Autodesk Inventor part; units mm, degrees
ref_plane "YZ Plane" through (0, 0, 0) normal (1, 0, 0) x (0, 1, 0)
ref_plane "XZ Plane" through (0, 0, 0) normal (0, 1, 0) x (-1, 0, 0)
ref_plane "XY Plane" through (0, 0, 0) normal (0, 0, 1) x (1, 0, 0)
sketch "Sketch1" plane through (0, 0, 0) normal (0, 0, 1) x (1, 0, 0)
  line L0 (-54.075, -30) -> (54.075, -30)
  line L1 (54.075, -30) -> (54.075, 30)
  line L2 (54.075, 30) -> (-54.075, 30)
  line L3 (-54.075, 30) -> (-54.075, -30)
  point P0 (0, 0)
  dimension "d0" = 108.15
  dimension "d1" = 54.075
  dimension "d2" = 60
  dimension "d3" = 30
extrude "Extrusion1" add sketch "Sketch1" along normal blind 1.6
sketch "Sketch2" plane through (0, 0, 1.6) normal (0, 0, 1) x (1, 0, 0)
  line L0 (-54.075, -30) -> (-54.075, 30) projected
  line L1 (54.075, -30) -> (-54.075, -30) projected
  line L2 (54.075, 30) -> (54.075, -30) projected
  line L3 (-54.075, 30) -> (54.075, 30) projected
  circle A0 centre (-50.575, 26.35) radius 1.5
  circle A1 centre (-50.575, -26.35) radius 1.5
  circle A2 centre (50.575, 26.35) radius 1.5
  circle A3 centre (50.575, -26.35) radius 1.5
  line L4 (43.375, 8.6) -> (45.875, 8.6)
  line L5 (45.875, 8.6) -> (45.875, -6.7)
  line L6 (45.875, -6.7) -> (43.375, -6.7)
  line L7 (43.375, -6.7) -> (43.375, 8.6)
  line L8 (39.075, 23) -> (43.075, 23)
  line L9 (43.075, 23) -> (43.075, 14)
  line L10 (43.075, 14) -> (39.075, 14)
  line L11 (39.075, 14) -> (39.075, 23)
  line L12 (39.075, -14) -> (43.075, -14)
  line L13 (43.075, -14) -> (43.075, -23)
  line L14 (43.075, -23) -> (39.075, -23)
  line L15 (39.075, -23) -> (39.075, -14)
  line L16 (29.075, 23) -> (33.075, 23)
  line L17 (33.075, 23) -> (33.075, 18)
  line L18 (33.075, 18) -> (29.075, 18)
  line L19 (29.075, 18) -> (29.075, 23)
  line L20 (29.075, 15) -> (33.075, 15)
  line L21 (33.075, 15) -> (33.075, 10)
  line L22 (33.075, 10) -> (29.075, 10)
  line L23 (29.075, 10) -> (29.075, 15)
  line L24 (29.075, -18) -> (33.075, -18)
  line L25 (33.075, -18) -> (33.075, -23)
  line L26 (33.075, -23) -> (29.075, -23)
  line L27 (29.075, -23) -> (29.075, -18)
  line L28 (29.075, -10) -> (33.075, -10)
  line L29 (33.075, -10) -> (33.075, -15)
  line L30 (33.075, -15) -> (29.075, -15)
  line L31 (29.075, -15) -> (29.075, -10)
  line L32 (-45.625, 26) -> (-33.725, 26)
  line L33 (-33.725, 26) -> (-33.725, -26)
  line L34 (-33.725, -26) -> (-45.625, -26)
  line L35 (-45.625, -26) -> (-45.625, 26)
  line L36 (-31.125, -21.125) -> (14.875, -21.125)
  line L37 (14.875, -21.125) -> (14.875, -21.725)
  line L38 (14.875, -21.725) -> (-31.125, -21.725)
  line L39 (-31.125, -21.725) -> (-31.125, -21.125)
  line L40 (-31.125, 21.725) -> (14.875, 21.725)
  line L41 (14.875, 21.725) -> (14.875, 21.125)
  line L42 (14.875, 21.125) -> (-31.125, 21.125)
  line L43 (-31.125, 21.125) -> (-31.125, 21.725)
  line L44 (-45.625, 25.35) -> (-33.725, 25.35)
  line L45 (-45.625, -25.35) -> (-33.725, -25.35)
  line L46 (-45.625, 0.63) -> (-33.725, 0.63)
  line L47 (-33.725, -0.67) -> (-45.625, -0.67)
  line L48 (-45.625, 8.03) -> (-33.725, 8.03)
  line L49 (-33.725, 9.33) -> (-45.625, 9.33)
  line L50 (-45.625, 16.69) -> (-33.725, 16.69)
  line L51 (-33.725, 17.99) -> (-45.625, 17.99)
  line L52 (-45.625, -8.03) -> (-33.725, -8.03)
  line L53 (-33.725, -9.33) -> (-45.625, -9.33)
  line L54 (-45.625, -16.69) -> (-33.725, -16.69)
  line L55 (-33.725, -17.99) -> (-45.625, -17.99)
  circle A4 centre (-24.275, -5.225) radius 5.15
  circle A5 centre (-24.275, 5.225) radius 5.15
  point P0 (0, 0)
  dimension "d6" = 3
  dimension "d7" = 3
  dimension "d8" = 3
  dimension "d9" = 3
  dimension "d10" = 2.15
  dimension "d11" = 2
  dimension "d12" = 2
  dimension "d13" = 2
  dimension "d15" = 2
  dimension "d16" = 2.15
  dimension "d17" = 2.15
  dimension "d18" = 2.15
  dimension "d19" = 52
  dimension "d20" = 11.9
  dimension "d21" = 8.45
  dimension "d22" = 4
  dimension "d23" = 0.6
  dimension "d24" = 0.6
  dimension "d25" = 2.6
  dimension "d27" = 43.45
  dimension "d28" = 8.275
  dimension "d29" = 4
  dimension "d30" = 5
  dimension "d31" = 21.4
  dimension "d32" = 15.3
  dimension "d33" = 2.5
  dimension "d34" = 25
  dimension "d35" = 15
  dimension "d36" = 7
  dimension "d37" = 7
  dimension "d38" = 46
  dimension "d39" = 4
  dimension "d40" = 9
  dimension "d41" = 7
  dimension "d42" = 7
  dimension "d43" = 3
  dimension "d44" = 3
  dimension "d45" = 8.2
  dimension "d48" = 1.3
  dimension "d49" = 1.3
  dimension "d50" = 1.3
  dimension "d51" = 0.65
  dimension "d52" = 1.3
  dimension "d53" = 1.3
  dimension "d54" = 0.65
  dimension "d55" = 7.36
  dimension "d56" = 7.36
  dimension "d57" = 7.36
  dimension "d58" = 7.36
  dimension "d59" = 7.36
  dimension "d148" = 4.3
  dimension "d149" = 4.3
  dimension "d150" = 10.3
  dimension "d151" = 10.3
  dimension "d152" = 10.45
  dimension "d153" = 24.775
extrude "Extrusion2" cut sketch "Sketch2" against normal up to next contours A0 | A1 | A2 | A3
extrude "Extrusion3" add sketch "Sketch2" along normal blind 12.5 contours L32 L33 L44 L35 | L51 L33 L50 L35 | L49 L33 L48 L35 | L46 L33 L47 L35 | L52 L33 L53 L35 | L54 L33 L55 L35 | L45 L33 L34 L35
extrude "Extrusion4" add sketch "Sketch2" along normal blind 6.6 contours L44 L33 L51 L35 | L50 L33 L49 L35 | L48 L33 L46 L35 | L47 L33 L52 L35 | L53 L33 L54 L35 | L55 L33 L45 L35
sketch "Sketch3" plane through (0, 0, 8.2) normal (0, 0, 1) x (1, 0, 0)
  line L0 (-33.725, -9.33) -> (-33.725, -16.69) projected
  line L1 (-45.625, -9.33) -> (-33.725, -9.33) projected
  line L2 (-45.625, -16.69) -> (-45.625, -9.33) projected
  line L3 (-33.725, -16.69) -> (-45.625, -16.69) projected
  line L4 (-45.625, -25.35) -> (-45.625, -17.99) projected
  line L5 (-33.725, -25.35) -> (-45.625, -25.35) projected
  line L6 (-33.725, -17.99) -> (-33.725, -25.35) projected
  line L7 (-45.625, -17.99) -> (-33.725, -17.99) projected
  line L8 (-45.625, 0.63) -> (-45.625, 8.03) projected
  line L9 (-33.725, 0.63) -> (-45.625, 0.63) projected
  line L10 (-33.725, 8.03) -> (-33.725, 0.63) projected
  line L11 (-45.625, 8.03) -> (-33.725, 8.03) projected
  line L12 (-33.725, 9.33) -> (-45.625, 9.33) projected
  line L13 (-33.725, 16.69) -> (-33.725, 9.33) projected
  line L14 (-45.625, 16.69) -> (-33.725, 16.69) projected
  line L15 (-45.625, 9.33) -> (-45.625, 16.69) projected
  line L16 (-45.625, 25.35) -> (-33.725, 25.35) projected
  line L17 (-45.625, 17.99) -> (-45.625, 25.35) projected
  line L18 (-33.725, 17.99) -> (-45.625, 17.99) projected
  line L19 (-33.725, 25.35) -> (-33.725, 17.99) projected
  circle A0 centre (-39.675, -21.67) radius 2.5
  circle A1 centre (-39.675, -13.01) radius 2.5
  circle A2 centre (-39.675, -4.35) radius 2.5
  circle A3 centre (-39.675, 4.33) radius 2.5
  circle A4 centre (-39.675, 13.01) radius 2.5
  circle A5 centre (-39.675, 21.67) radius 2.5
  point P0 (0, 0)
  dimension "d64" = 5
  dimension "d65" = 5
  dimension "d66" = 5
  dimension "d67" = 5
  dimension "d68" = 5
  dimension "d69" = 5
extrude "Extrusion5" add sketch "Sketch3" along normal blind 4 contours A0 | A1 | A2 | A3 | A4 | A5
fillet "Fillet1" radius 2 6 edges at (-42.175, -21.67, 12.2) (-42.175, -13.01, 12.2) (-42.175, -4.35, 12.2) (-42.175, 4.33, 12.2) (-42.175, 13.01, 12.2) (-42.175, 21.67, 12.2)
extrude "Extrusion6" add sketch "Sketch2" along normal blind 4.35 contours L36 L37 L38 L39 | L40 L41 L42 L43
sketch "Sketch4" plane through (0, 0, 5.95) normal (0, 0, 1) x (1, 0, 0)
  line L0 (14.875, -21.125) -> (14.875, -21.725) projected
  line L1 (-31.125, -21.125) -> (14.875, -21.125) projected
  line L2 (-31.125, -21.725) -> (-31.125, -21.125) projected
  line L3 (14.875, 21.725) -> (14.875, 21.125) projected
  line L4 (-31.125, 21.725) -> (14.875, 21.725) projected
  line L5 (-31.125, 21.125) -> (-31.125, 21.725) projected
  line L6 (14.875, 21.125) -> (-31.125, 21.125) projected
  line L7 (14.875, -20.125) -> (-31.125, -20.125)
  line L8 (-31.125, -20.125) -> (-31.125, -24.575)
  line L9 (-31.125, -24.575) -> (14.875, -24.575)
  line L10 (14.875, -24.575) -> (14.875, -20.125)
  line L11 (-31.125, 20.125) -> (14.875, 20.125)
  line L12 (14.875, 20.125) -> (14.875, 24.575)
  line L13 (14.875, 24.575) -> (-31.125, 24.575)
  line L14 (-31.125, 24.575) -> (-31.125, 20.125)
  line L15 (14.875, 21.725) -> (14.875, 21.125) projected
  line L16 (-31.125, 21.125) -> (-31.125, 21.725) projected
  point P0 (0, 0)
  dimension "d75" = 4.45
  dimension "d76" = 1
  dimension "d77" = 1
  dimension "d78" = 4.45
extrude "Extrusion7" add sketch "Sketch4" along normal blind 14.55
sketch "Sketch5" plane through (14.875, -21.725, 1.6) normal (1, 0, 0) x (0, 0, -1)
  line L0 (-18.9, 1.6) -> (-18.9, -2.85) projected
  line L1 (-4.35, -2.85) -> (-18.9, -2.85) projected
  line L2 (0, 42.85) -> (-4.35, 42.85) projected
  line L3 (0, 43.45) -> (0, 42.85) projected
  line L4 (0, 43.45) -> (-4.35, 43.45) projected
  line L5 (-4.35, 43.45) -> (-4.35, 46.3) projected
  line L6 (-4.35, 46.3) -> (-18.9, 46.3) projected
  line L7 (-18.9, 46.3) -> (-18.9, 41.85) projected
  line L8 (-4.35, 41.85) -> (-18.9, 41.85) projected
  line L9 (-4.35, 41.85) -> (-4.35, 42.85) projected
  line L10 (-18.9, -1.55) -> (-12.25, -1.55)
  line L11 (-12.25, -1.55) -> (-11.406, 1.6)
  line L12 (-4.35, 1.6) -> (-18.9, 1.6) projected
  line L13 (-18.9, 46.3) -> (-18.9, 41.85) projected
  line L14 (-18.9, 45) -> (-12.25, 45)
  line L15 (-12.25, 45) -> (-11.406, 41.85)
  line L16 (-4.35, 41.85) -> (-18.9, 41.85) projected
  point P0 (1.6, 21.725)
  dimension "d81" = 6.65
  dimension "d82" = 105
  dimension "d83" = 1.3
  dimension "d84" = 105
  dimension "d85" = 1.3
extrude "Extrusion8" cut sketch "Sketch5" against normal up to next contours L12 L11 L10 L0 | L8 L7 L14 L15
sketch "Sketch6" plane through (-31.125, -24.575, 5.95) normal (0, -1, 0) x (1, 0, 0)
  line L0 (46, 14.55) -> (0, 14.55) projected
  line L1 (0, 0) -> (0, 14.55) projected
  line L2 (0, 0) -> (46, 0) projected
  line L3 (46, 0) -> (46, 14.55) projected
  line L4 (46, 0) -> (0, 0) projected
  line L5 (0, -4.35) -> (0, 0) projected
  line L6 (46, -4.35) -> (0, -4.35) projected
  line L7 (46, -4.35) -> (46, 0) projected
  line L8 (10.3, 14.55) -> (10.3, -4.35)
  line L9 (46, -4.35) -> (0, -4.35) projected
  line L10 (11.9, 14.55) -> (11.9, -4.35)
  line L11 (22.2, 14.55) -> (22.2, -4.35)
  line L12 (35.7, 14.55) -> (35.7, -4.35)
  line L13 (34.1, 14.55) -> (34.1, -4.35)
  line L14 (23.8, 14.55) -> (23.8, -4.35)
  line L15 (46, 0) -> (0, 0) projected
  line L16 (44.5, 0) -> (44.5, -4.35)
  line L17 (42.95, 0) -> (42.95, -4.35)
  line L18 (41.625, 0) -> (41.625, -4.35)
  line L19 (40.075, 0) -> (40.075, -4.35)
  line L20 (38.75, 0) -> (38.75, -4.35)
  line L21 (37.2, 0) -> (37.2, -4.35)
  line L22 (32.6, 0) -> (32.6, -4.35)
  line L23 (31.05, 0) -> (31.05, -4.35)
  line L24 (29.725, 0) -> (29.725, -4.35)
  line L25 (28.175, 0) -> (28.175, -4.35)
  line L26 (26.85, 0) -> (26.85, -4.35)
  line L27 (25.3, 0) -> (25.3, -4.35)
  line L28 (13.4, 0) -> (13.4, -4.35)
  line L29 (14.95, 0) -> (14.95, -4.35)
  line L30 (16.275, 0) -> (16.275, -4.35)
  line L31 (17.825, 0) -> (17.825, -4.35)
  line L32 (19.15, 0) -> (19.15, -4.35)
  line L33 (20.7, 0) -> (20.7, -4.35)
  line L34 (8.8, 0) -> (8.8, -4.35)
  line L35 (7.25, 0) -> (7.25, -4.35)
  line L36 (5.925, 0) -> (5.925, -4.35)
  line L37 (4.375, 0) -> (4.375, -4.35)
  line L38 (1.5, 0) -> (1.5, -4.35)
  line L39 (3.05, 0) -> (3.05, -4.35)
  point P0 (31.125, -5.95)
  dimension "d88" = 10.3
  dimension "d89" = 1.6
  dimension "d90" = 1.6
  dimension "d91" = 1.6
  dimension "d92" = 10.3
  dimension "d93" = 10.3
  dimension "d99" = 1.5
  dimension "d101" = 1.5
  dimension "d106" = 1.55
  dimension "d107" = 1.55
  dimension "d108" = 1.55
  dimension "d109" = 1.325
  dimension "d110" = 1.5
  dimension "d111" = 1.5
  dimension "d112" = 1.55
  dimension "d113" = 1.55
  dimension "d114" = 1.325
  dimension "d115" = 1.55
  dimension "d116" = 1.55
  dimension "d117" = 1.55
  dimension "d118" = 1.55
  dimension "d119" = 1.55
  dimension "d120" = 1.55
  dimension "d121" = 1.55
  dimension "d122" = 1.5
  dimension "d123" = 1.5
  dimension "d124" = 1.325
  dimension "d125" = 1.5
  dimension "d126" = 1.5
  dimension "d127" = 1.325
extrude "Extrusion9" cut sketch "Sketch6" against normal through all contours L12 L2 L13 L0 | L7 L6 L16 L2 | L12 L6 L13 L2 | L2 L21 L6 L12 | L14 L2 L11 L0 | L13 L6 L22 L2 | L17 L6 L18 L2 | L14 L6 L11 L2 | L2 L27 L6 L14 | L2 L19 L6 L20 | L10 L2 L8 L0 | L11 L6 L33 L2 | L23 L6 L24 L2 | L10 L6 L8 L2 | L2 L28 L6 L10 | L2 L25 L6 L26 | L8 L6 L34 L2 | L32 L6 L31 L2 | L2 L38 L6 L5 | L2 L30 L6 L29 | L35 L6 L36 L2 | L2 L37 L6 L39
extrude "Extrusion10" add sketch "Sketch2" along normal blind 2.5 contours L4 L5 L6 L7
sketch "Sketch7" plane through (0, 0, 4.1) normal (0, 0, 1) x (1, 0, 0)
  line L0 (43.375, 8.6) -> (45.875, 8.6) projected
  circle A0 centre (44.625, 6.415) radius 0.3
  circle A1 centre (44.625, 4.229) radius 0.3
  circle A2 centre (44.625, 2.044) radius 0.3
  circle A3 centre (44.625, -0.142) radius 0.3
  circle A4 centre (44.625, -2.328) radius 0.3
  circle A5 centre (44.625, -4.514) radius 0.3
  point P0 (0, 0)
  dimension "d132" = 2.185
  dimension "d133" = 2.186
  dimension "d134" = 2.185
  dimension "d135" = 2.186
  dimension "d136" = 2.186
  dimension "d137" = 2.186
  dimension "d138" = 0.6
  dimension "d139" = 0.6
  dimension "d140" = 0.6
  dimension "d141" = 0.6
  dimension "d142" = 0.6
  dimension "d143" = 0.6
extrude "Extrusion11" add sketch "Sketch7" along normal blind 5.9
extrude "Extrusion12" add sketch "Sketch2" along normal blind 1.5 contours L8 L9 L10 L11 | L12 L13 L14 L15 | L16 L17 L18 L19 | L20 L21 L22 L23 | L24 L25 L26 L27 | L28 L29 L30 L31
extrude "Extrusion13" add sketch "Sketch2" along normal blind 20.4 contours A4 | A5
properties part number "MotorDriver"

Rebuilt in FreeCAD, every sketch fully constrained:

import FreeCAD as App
import Part
import Sketcher

V = App.Vector
Q = App.Units.Quantity


def edges_at(feature, points):
    """Names of the edges that pass closest to the given points."""
    edges = feature.Shape.Edges
    near = lambda p: min(range(len(edges)), key=lambda i: edges[i].distToShape(Part.Vertex(*p))[0])
    return sorted({f"Edge{near(p) + 1}" for p in points})


def add_polygon(sketch, points):
    """Adds a closed chain of lines whose ends are joined by coincident constraints."""
    first, n = sketch.GeometryCount, len(points)
    for a, b in zip(points, points[1:] + points[:1]):
        sketch.addGeometry(Part.LineSegment(App.Vector(*a, 0), App.Vector(*b, 0)), False)
    for i in range(n):
        sketch.addConstraint(Sketcher.Constraint("Coincident", first + i, 2, first + (i + 1) % n, 1))

doc = App.newDocument("Part")
body = doc.addObject("PartDesign::Body", "Body")

sketch1 = doc.addObject("Sketcher::SketchObject", "Sketch")
body.addObject(sketch1)
sketch1.AttachmentSupport = (doc.XY_Plane, [""])
sketch1.MapMode = "FlatFace"
add_polygon(sketch1, [(-54, 30), (-54, -30), (54, -30), (54, 30)])
sketch1.addConstraint([
    Sketcher.Constraint("Vertical", 0),
    Sketcher.Constraint("Horizontal", 1),
    Sketcher.Constraint("Vertical", 2),
    Sketcher.Constraint("Horizontal", 3),
    Sketcher.Constraint("Symmetric", 0, 2, 2, 2, -1, 1),
    Sketcher.Constraint("DistanceY", 0, 2, 0, 1, 60.0),
    Sketcher.Constraint("DistanceX", 1, 1, 1, 2, 108.15),
])
pad1 = doc.addObject("PartDesign::Pad", "Pad")
body.addObject(pad1)
pad1.Profile = sketch1
pad1.Length = 1.6

sketch2 = doc.addObject("Sketcher::SketchObject", "Sketch001")
body.addObject(sketch2)
sketch2.AttachmentSupport = (doc.XY_Plane, [""])
sketch2.MapMode = "FlatFace"
sketch2.AttachmentOffset = App.Placement(V(0, 0, 1.6), App.Rotation())
sketch2.addGeometry([
    Part.Circle(V(-50.6, 26.4, 0), V(0, 0, 1), 1.5),
    Part.Circle(V(-50.6, -26.4, 0), V(0, 0, 1), 1.5),
    Part.Circle(V(50.6, 26.4, 0), V(0, 0, 1), 1.5),
    Part.Circle(V(50.6, -26.4, 0), V(0, 0, 1), 1.5),
], False)
sketch2.addConstraint([
    Sketcher.Constraint("Equal", 0, 1),
    Sketcher.Constraint("Equal", 1, 2),
    Sketcher.Constraint("Equal", 2, 3),
    Sketcher.Constraint("Symmetric", 1, 3, 2, 3, -1, 1),
    Sketcher.Constraint("Symmetric", 0, 3, 3, 3, -1, 1),
    Sketcher.Constraint("Symmetric", 0, 3, 2, 3, -2),
    Sketcher.Constraint("Diameter", 0, 3.0),
    Sketcher.Constraint("DistanceY", 1, 3, 0, 3, 52.7),
    Sketcher.Constraint("DistanceX", 0, 3, 2, 3, 101.15),
])
pocket1 = doc.addObject("PartDesign::Pocket", "Pocket")
body.addObject(pocket1)
pocket1.Profile = sketch2
pocket1.Length = 1.6

sketch3 = doc.addObject("Sketcher::SketchObject", "Sketch002")
body.addObject(sketch3)
sketch3.AttachmentSupport = (doc.XY_Plane, [""])
sketch3.MapMode = "FlatFace"
sketch3.AttachmentOffset = App.Placement(V(0, 0, 1.6), App.Rotation())
add_polygon(sketch3, [(-33.7, 26), (-45.6, 26), (-45.6, 25.4), (-33.7, 25.4)])
add_polygon(sketch3, [(-33.7, 18), (-45.6, 18), (-45.6, 16.7), (-33.7, 16.7)])
add_polygon(sketch3, [(-33.7, 9.3), (-45.6, 9.3), (-45.6, 8), (-33.7, 8)])
add_polygon(sketch3, [(-33.7, 0.6), (-45.6, 0.6), (-45.6, -0.7), (-33.7, -0.7)])
add_polygon(sketch3, [(-33.7, -8), (-45.6, -8), (-45.6, -9.3), (-33.7, -9.3)])
add_polygon(sketch3, [(-33.7, -16.7), (-45.6, -16.7), (-45.6, -18), (-33.7, -18)])
add_polygon(sketch3, [(-33.7, -25.4), (-45.6, -25.4), (-45.6, -26), (-33.7, -26)])
sketch3.addConstraint([
    Sketcher.Constraint("Horizontal", 0),
    Sketcher.Constraint("Vertical", 1),
    Sketcher.Constraint("Horizontal", 2),
    Sketcher.Constraint("Vertical", 3),
    Sketcher.Constraint("Horizontal", 4),
    Sketcher.Constraint("Vertical", 5),
    Sketcher.Constraint("Horizontal", 6),
    Sketcher.Constraint("Vertical", 7),
    Sketcher.Constraint("Horizontal", 8),
    Sketcher.Constraint("Vertical", 9),
    Sketcher.Constraint("Horizontal", 10),
    Sketcher.Constraint("Vertical", 11),
    Sketcher.Constraint("Horizontal", 12),
    Sketcher.Constraint("Vertical", 13),
    Sketcher.Constraint("Horizontal", 14),
    Sketcher.Constraint("Vertical", 15),
    Sketcher.Constraint("Horizontal", 16),
    Sketcher.Constraint("Vertical", 17),
    Sketcher.Constraint("Horizontal", 18),
    Sketcher.Constraint("Vertical", 19),
    Sketcher.Constraint("Horizontal", 20),
    Sketcher.Constraint("Vertical", 21),
    Sketcher.Constraint("Horizontal", 22),
    Sketcher.Constraint("Vertical", 23),
    Sketcher.Constraint("Horizontal", 24),
    Sketcher.Constraint("Vertical", 25),
    Sketcher.Constraint("Horizontal", 26),
    Sketcher.Constraint("Vertical", 27),
    Sketcher.Constraint("Symmetric", 9, 2, 16, 2, -1),
    Sketcher.Constraint("Symmetric", 11, 2, 18, 2, -1),
    Sketcher.Constraint("Symmetric", 5, 2, 20, 2, -1),
    Sketcher.Constraint("Symmetric", 7, 2, 22, 2, -1),
    Sketcher.Constraint("Symmetric", 1, 2, 24, 2, -1),
    Sketcher.Constraint("Symmetric", 3, 2, 26, 2, -1),
    Sketcher.Constraint("Vertical", 1, 2, 4, 2),
    Sketcher.Constraint("Vertical", 3, 2, 6, 2),
    Sketcher.Constraint("Vertical", 5, 2, 8, 2),
    Sketcher.Constraint("Vertical", 7, 2, 10, 2),
    Sketcher.Constraint("Vertical", 9, 2, 12, 2),
    Sketcher.Constraint("Vertical", 11, 2, 14, 2),
    Sketcher.Constraint("Equal", 7, 9),
    Sketcher.Constraint("Equal", 11, 13),
    Sketcher.Constraint("DistanceX", 0, 2, 0, 1, 11.9),
    Sketcher.Constraint("DistanceY", 5, 2, 5, 1, 1.3),
    Sketcher.Constraint("DistanceY", 1, 2, 1, 1, 0.65),
    Sketcher.Constraint("DistanceY", 4, 2, 1, 2, 7.36),
    Sketcher.Constraint("DistanceY", 8, 2, 5, 2, 7.36),
    Sketcher.Constraint("DistanceY", 16, 2, 13, 2, 7.36),
    Sketcher.Constraint("DistanceY", -1, 1, 0, 2, 26.0),
    Sketcher.Constraint("DistanceX", 0, 2, -1, 1, 45.625),
])
pad2 = doc.addObject("PartDesign::Pad", "Pad001")
body.addObject(pad2)
pad2.Profile = sketch3
pad2.Length = 12.5

sketch4 = doc.addObject("Sketcher::SketchObject", "Sketch003")
body.addObject(sketch4)
sketch4.AttachmentSupport = (doc.XY_Plane, [""])
sketch4.MapMode = "FlatFace"
sketch4.AttachmentOffset = App.Placement(V(0, 0, 1.6), App.Rotation())
add_polygon(sketch4, [(-34, 25), (-46, 25), (-46, 18), (-34, 18)])
add_polygon(sketch4, [(-34, 17), (-46, 17), (-46, 9), (-34, 9)])
add_polygon(sketch4, [(-34, 8), (-46, 8), (-46, 1), (-34, 1)])
add_polygon(sketch4, [(-34, -1), (-46, -1), (-46, -8), (-34, -8)])
add_polygon(sketch4, [(-34, -9), (-46, -9), (-46, -17), (-34, -17)])
add_polygon(sketch4, [(-34, -18), (-46, -18), (-46, -25), (-34, -25)])
sketch4.addConstraint([
    Sketcher.Constraint("Horizontal", 0),
    Sketcher.Constraint("Vertical", 1),
    Sketcher.Constraint("Horizontal", 2),
    Sketcher.Constraint("Vertical", 3),
    Sketcher.Constraint("Horizontal", 4),
    Sketcher.Constraint("Vertical", 5),
    Sketcher.Constraint("Horizontal", 6),
    Sketcher.Constraint("Vertical", 7),
    Sketcher.Constraint("Horizontal", 8),
    Sketcher.Constraint("Vertical", 9),
    Sketcher.Constraint("Horizontal", 10),
    Sketcher.Constraint("Vertical", 11),
    Sketcher.Constraint("Horizontal", 12),
    Sketcher.Constraint("Vertical", 13),
    Sketcher.Constraint("Horizontal", 14),
    Sketcher.Constraint("Vertical", 15),
    Sketcher.Constraint("Horizontal", 16),
    Sketcher.Constraint("Vertical", 17),
    Sketcher.Constraint("Horizontal", 18),
    Sketcher.Constraint("Vertical", 19),
    Sketcher.Constraint("Horizontal", 20),
    Sketcher.Constraint("Vertical", 21),
    Sketcher.Constraint("Horizontal", 22),
    Sketcher.Constraint("Vertical", 23),
    Sketcher.Constraint("Symmetric", 8, 2, 13, 2, -1),
    Sketcher.Constraint("Symmetric", 5, 2, 16, 2, -1),
    Sketcher.Constraint("Symmetric", 7, 2, 18, 2, -1),
    Sketcher.Constraint("Symmetric", 1, 2, 20, 2, -1),
    Sketcher.Constraint("Symmetric", 3, 2, 22, 2, -1),
    Sketcher.Constraint("Vertical", 1, 2, 4, 2),
    Sketcher.Constraint("Vertical", 3, 2, 6, 2),
    Sketcher.Constraint("Vertical", 5, 2, 8, 2),
    Sketcher.Constraint("Vertical", 7, 2, 10, 2),
    Sketcher.Constraint("Vertical", 11, 2, 14, 2),
    Sketcher.Constraint("Equal", 3, 5),
    Sketcher.Constraint("Equal", 7, 13),
    Sketcher.Constraint("DistanceX", 0, 2, 0, 1, 11.9),
    Sketcher.Constraint("DistanceY", 1, 2, 1, 1, 7.36),
    Sketcher.Constraint("DistanceY", 4, 2, 1, 2, 1.3),
    Sketcher.Constraint("DistanceY", 8, 2, 5, 2, 1.3),
    Sketcher.Constraint("DistanceY", 12, 2, 9, 2, 1.3),
    Sketcher.Constraint("DistanceY", 9, 2, 9, 1, 7.4),
    Sketcher.Constraint("DistanceX", 0, 2, -1, 1, 45.625),
])
pad3 = doc.addObject("PartDesign::Pad", "Pad002")
body.addObject(pad3)
pad3.Profile = sketch4
pad3.Length = 6.6

sketch5 = doc.addObject("Sketcher::SketchObject", "Sketch004")
body.addObject(sketch5)
sketch5.AttachmentSupport = (doc.XY_Plane, [""])
sketch5.MapMode = "FlatFace"
sketch5.AttachmentOffset = App.Placement(V(0, 0, 8.2), App.Rotation())
sketch5.addGeometry([
    Part.Circle(V(-39.7, -21.7, 0), V(0, 0, 1), 2.5),
    Part.Circle(V(-39.7, -13, 0), V(0, 0, 1), 2.5),
    Part.Circle(V(-39.7, -4.3, 0), V(0, 0, 1), 2.5),
    Part.Circle(V(-39.7, 4.3, 0), V(0, 0, 1), 2.5),
    Part.Circle(V(-39.7, 13, 0), V(0, 0, 1), 2.5),
    Part.Circle(V(-39.7, 21.7, 0), V(0, 0, 1), 2.5),
], False)
sketch5.addConstraint([
    Sketcher.Constraint("Equal", 0, 1),
    Sketcher.Constraint("Equal", 1, 2),
    Sketcher.Constraint("Equal", 2, 3),
    Sketcher.Constraint("Equal", 3, 4),
    Sketcher.Constraint("Equal", 4, 5),
    Sketcher.Constraint("Symmetric", 1, 3, 4, 3, -1),
    Sketcher.Constraint("Symmetric", 0, 3, 5, 3, -1),
    Sketcher.Constraint("Vertical", 0, 3, 1, 3),
    Sketcher.Constraint("Vertical", 1, 3, 2, 3),
    Sketcher.Constraint("Vertical", 2, 3, 3, 3),
    Sketcher.Constraint("Diameter", 0, 5.0),
    Sketcher.Constraint("DistanceY", 0, 3, 3, 3, 26.0),
    Sketcher.Constraint("DistanceY", 0, 3, -1, 1, 21.67),
    Sketcher.Constraint("DistanceY", 1, 3, -1, 1, 13.01),
    Sketcher.Constraint("DistanceY", 2, 3, -1, 1, 4.35),
    Sketcher.Constraint("DistanceX", 0, 3, -1, 1, 39.675),
])
pad4 = doc.addObject("PartDesign::Pad", "Pad003")
body.addObject(pad4)
pad4.Profile = sketch5
pad4.Length = 4
doc.recompute()

fillet = doc.addObject("PartDesign::Fillet", "Fillet")
body.addObject(fillet)
fillet.Base = (pad4, edges_at(pad4, [
    (-42.175, -21.67, 12.2),
    (-42.175, -13.01, 12.2),
    (-42.175, -4.35, 12.2),
    (-42.175, 4.33, 12.2),
    (-42.175, 13.01, 12.2),
    (-42.175, 21.67, 12.2),
]))
fillet.Radius = 2

sketch6 = doc.addObject("Sketcher::SketchObject", "Sketch005")
body.addObject(sketch6)
sketch6.AttachmentSupport = (doc.XY_Plane, [""])
sketch6.MapMode = "FlatFace"
sketch6.AttachmentOffset = App.Placement(V(0, 0, 1.6), App.Rotation())
add_polygon(sketch6, [(14.9, -21.1), (-31.1, -21.1), (-31.1, -21.7), (14.9, -21.7)])
add_polygon(sketch6, [(14.9, 21.7), (-31.1, 21.7), (-31.1, 21.1), (14.9, 21.1)])
sketch6.addConstraint([
    Sketcher.Constraint("Horizontal", 0),
    Sketcher.Constraint("Vertical", 1),
    Sketcher.Constraint("Horizontal", 2),
    Sketcher.Constraint("Vertical", 3),
    Sketcher.Constraint("Horizontal", 4),
    Sketcher.Constraint("Vertical", 5),
    Sketcher.Constraint("Horizontal", 6),
    Sketcher.Constraint("Vertical", 7),
    Sketcher.Constraint("Symmetric", 1, 2, 4, 2, -1),
    Sketcher.Constraint("Symmetric", 3, 2, 6, 2, -1),
    Sketcher.Constraint("DistanceX", 0, 2, 0, 1, 46.0),
    Sketcher.Constraint("DistanceY", 1, 2, 1, 1, 0.6),
    Sketcher.Constraint("DistanceY", 1, 2, 4, 2, 43.45),
    Sketcher.Constraint("DistanceX", 0, 2, -1, 1, 31.125),
])
pad5 = doc.addObject("PartDesign::Pad", "Pad004")
body.addObject(pad5)
pad5.Profile = sketch6
pad5.Length = 4.35

sketch7 = doc.addObject("Sketcher::SketchObject", "Sketch006")
body.addObject(sketch7)
sketch7.AttachmentSupport = (doc.XY_Plane, [""])
sketch7.MapMode = "FlatFace"
sketch7.AttachmentOffset = App.Placement(V(0, 0, 5.95), App.Rotation())
add_polygon(sketch7, [(14.9, -20.1), (-31.1, -20.1), (-31.1, -24.6), (14.9, -24.6)])
add_polygon(sketch7, [(14.9, 24.6), (-31.1, 24.6), (-31.1, 20.1), (14.9, 20.1)])
sketch7.addConstraint([
    Sketcher.Constraint("Horizontal", 0),
    Sketcher.Constraint("Vertical", 1),
    Sketcher.Constraint("Horizontal", 2),
    Sketcher.Constraint("Vertical", 3),
    Sketcher.Constraint("Horizontal", 4),
    Sketcher.Constraint("Vertical", 5),
    Sketcher.Constraint("Horizontal", 6),
    Sketcher.Constraint("Vertical", 7),
    Sketcher.Constraint("Symmetric", 1, 2, 4, 2, -1),
    Sketcher.Constraint("Symmetric", 3, 2, 6, 2, -1),
    Sketcher.Constraint("DistanceY", 1, 2, 1, 1, 4.45),
    Sketcher.Constraint("DistanceX", 0, 2, 0, 1, 46.0),
    Sketcher.Constraint("DistanceY", 0, 2, 4, 2, 44.7),
    Sketcher.Constraint("DistanceX", 0, 2, -1, 1, 31.125),
])
pad6 = doc.addObject("PartDesign::Pad", "Pad005")
body.addObject(pad6)
pad6.Profile = sketch7
pad6.Length = 14.55

sketch8 = doc.addObject("Sketcher::SketchObject", "Sketch007")
body.addObject(sketch8)
sketch8.AttachmentSupport = (doc.YZ_Plane, [""])
sketch8.MapMode = "FlatFace"
sketch8.AttachmentOffset = App.Placement(V(0, 0, 14.875), App.Rotation())
add_polygon(sketch8, [(-20.1, 13), (-20.1, 20.5), (-23.3, 20.5), (-23.3, 13.8)])
add_polygon(sketch8, [(20.1, 20.5), (20.1, 13), (23.3, 13.8), (23.3, 20.5)])
sketch8.addConstraint([
    Sketcher.Constraint("Vertical", 0),
    Sketcher.Constraint("Horizontal", 1),
    Sketcher.Constraint("Vertical", 2),
    Sketcher.Constraint("Vertical", 4),
    Sketcher.Constraint("Vertical", 6),
    Sketcher.Constraint("Horizontal", 7),
    Sketcher.Constraint("Symmetric", 3, 2, 4, 2, -2),
    Sketcher.Constraint("Symmetric", 2, 2, 5, 2, -2),
    Sketcher.Constraint("Horizontal", 1, 2, 6, 2),
    Sketcher.Constraint("DistanceY", 2, 2, 2, 1, 6.65),
    Sketcher.Constraint("Angle", 3, Q("-14.9993 deg")),
    Sketcher.Constraint("DistanceX", 1, 2, 1, 1, 3.15),
    Sketcher.Constraint("DistanceY", -1, 1, 0, 2, 20.5),
    Sketcher.Constraint("DistanceX", 2, 2, 4, 2, 43.4),
])
pocket2 = doc.addObject("PartDesign::Pocket", "Pocket001")
body.addObject(pocket2)
pocket2.Profile = sketch8
pocket2.Length = 46

sketch9 = doc.addObject("Sketcher::SketchObject", "Sketch008")
body.addObject(sketch9)
sketch9.AttachmentSupport = (doc.XZ_Plane, [""])
sketch9.MapMode = "FlatFace"
sketch9.AttachmentOffset = App.Placement(V(0, 0, 24.575), App.Rotation())
add_polygon(sketch9, [(4.6, 6), (4.6, 20.5), (3, 20.5), (3, 6), (1.5, 6), (1.5, 1.6), (6.1, 1.6), (6.1, 6)])
add_polygon(sketch9, [(14.9, 1.6), (14.9, 6), (13.4, 6), (13.4, 1.6)])
add_polygon(sketch9, [(-7.3, 6), (-7.3, 20.5), (-8.9, 20.5), (-8.9, 6), (-10.4, 6), (-10.4, 1.6), (-5.8, 1.6), (-5.8, 6)])
add_polygon(sketch9, [(11.8, 1.6), (11.8, 6), (10.5, 6), (10.5, 1.6)])
add_polygon(sketch9, [(8.9, 6), (7.6, 6), (7.6, 1.6), (8.9, 1.6)])
add_polygon(sketch9, [(-19.2, 6), (-19.2, 20.5), (-20.8, 20.5), (-20.8, 6), (-22.3, 6), (-22.3, 1.6), (-17.7, 1.6), (-17.7, 6)])
add_polygon(sketch9, [(-0.1, 1.6), (-0.1, 6), (-1.4, 6), (-1.4, 1.6)])
add_polygon(sketch9, [(-3, 6), (-4.3, 6), (-4.3, 1.6), (-3, 1.6)])
add_polygon(sketch9, [(-12, 1.6), (-12, 6), (-13.3, 6), (-13.3, 1.6)])
add_polygon(sketch9, [(-29.6, 6), (-31.1, 6), (-31.1, 1.6), (-29.6, 1.6)])
add_polygon(sketch9, [(-14.8, 6), (-16.2, 6), (-16.2, 1.6), (-14.8, 1.6)])
add_polygon(sketch9, [(-23.9, 1.6), (-23.9, 6), (-25.2, 6), (-25.2, 1.6)])
add_polygon(sketch9, [(-26.8, 6), (-28.1, 6), (-28.1, 1.6), (-26.8, 1.6)])
sketch9.addConstraint([
    Sketcher.Constraint("Vertical", 0),
    Sketcher.Constraint("Horizontal", 1),
    Sketcher.Constraint("Vertical", 2),
    Sketcher.Constraint("Horizontal", 3),
    Sketcher.Constraint("Vertical", 4),
    Sketcher.Constraint("Horizontal", 5),
    Sketcher.Constraint("Vertical", 6),
    Sketcher.Constraint("Horizontal", 7),
    Sketcher.Constraint("Vertical", 8),
    Sketcher.Constraint("Horizontal", 9),
    Sketcher.Constraint("Vertical", 10),
    Sketcher.Constraint("Horizontal", 11),
    Sketcher.Constraint("Vertical", 12),
    Sketcher.Constraint("Horizontal", 13),
    Sketcher.Constraint("Vertical", 14),
    Sketcher.Constraint("Horizontal", 15),
    Sketcher.Constraint("Vertical", 16),
    Sketcher.Constraint("Horizontal", 17),
    Sketcher.Constraint("Vertical", 18),
    Sketcher.Constraint("Horizontal", 19),
    Sketcher.Constraint("Vertical", 20),
    Sketcher.Constraint("Horizontal", 21),
    Sketcher.Constraint("Vertical", 22),
    Sketcher.Constraint("Horizontal", 23),
    Sketcher.Constraint("Horizontal", 24),
    Sketcher.Constraint("Vertical", 25),
    Sketcher.Constraint("Horizontal", 26),
    Sketcher.Constraint("Vertical", 27),
    Sketcher.Constraint("Vertical", 28),
    Sketcher.Constraint("Horizontal", 29),
    Sketcher.Constraint("Vertical", 30),
    Sketcher.Constraint("Horizontal", 31),
    Sketcher.Constraint("Vertical", 32),
    Sketcher.Constraint("Horizontal", 33),
    Sketcher.Constraint("Vertical", 34),
    Sketcher.Constraint("Horizontal", 35),
    Sketcher.Constraint("Vertical", 36),
    Sketcher.Constraint("Horizontal", 37),
    Sketcher.Constraint("Vertical", 38),
    Sketcher.Constraint("Horizontal", 39),
    Sketcher.Constraint("Horizontal", 40),
    Sketcher.Constraint("Vertical", 41),
    Sketcher.Constraint("Horizontal", 42),
    Sketcher.Constraint("Vertical", 43),
    Sketcher.Constraint("Vertical", 44),
    Sketcher.Constraint("Horizontal", 45),
    Sketcher.Constraint("Vertical", 46),
    Sketcher.Constraint("Horizontal", 47),
    Sketcher.Constraint("Horizontal", 48),
    Sketcher.Constraint("Vertical", 49),
    Sketcher.Constraint("Horizontal", 50),
    Sketcher.Constraint("Vertical", 51),
    Sketcher.Constraint("Horizontal", 52),
    Sketcher.Constraint("Vertical", 53),
    Sketcher.Constraint("Horizontal", 54),
    Sketcher.Constraint("Vertical", 55),
    Sketcher.Constraint("Vertical", 56),
    Sketcher.Constraint("Horizontal", 57),
    Sketcher.Constraint("Vertical", 58),
    Sketcher.Constraint("Horizontal", 59),
    Sketcher.Constraint("Horizontal", 60),
    Sketcher.Constraint("Vertical", 61),
    Sketcher.Constraint("Horizontal", 62),
    Sketcher.Constraint("Vertical", 63),
    Sketcher.Constraint("Horizontal", 3, 2, 6, 2),
    Sketcher.Constraint("Horizontal", 7, 2, 8, 2),
    Sketcher.Constraint("Horizontal", 5, 2, 10, 2),
    Sketcher.Constraint("Horizontal", 1, 2, 12, 2),
    Sketcher.Constraint("Horizontal", 9, 2, 14, 2),
    Sketcher.Constraint("Horizontal", 11, 2, 16, 2),
    Sketcher.Constraint("Horizontal", 15, 2, 18, 2),
    Sketcher.Constraint("Horizontal", 19, 2, 20, 2),
    Sketcher.Constraint("Horizontal", 17, 2, 22, 2),
    Sketcher.Constraint("Horizontal", 21, 2, 24, 2),
    Sketcher.Constraint("Horizontal", 23, 2, 25, 2),
    Sketcher.Constraint("Horizontal", 13, 2, 28, 2),
    Sketcher.Constraint("Horizontal", 27, 2, 30, 2),
    Sketcher.Constraint("Horizontal", 26, 2, 32, 2),
    Sketcher.Constraint("Horizontal", 31, 2, 34, 2),
    Sketcher.Constraint("Horizontal", 35, 2, 36, 2),
    Sketcher.Constraint("Horizontal", 33, 2, 38, 2),
    Sketcher.Constraint("Horizontal", 37, 2, 40, 2),
    Sketcher.Constraint("Horizontal", 39, 2, 41, 2),
    Sketcher.Constraint("Horizontal", 43, 2, 44, 2),
    Sketcher.Constraint("Horizontal", 42, 2, 46, 2),
    Sketcher.Constraint("Horizontal", 45, 2, 48, 2),
    Sketcher.Constraint("Horizontal", 47, 2, 49, 2),
    Sketcher.Constraint("Horizontal", 51, 2, 52, 2),
    Sketcher.Constraint("Horizontal", 50, 2, 53, 2),
    Sketcher.Constraint("Horizontal", 55, 2, 56, 2),
    Sketcher.Constraint("Horizontal", 54, 2, 58, 2),
    Sketcher.Constraint("Horizontal", 57, 2, 60, 2),
    Sketcher.Constraint("Horizontal", 59, 2, 61, 2),
    Sketcher.Constraint("Equal", 3, 7),
    Sketcher.Constraint("Equal", 7, 9),
    Sketcher.Constraint("Equal", 1, 13),
    Sketcher.Constraint("Equal", 11, 15),
    Sketcher.Constraint("Equal", 5, 17),
    Sketcher.Constraint("Equal", 23, 24),
    Sketcher.Constraint("Equal", 13, 29),
    Sketcher.Constraint("Equal", 19, 31),
    Sketcher.Constraint("Equal", 17, 33),
    Sketcher.Constraint("Equal", 26, 37),
    Sketcher.Constraint("Equal", 39, 40),
    Sketcher.Constraint("Equal", 42, 45),
    Sketcher.Constraint("Equal", 35, 48),
    Sketcher.Constraint("Equal", 47, 52),
    Sketcher.Constraint("Equal", 54, 57),
    Sketcher.Constraint("Equal", 59, 60),
    Sketcher.Constraint("DistanceX", 1, 2, 1, 1, 1.6),
    Sketcher.Constraint("DistanceX", 3, 2, 3, 1, 1.5),
    Sketcher.Constraint("DistanceY", -1, 1, 4, 2, 1.6),
    Sketcher.Constraint("DistanceX", 21, 2, 21, 1, 1.325),
    Sketcher.Constraint("DistanceY", 0, 1, 0, 2, 14.55),
    Sketcher.Constraint("DistanceY", 4, 2, 4, 1, 4.35),
    Sketcher.Constraint("DistanceX", -1, 1, 21, 2, 10.5),
    Sketcher.Constraint("DistanceX", 37, 2, -1, 1, 1.4),
    Sketcher.Constraint("DistanceX", 45, 2, -1, 1, 13.3),
    Sketcher.Constraint("DistanceX", 57, 2, -1, 1, 25.2),
    Sketcher.Constraint("DistanceX", -1, 1, 26, 2, 8.95),
    Sketcher.Constraint("DistanceX", 42, 2, -1, 1, 2.95),
    Sketcher.Constraint("DistanceX", 54, 2, -1, 1, 14.85),
    Sketcher.Constraint("DistanceX", 62, 2, -1, 1, 26.75),
    Sketcher.Constraint("DistanceX", -1, 1, 0, 2, 4.575),
    Sketcher.Constraint("DistanceX", -1, 1, 8, 2, 14.875),
    Sketcher.Constraint("DistanceX", 12, 2, -1, 1, 7.325),
    Sketcher.Constraint("DistanceX", 28, 2, -1, 1, 19.225),
    Sketcher.Constraint("DistanceX", 48, 2, -1, 1, 31.125),
])
pocket3 = doc.addObject("PartDesign::Pocket", "Pocket002")
body.addObject(pocket3)
pocket3.Profile = sketch9
pocket3.Type = "ThroughAll"

sketch10 = doc.addObject("Sketcher::SketchObject", "Sketch009")
body.addObject(sketch10)
sketch10.AttachmentSupport = (doc.XY_Plane, [""])
sketch10.MapMode = "FlatFace"
sketch10.AttachmentOffset = App.Placement(V(0, 0, 1.6), App.Rotation())
add_polygon(sketch10, [(45.9, 8.6), (43.4, 8.6), (43.4, -6.7), (45.9, -6.7)])
sketch10.addConstraint([
    Sketcher.Constraint("Horizontal", 0),
    Sketcher.Constraint("Vertical", 1),
    Sketcher.Constraint("Horizontal", 2),
    Sketcher.Constraint("Vertical", 3),
    Sketcher.Constraint("DistanceX", 0, 2, 0, 1, 2.5),
    Sketcher.Constraint("DistanceY", 1, 2, 1, 1, 15.3),
    Sketcher.Constraint("DistanceY", -1, 1, 0, 2, 8.6),
    Sketcher.Constraint("DistanceX", -1, 1, 0, 2, 43.375),
])
pad7 = doc.addObject("PartDesign::Pad", "Pad006")
body.addObject(pad7)
pad7.Profile = sketch10
pad7.Length = 2.5

sketch11 = doc.addObject("Sketcher::SketchObject", "Sketch010")
body.addObject(sketch11)
sketch11.AttachmentSupport = (doc.XY_Plane, [""])
sketch11.MapMode = "FlatFace"
sketch11.AttachmentOffset = App.Placement(V(0, 0, 4.1), App.Rotation())
sketch11.addGeometry([
    Part.Circle(V(44.62, 6.42, 0), V(0, 0, 1), 0.3),
    Part.Circle(V(44.62, 4.23, 0), V(0, 0, 1), 0.3),
    Part.Circle(V(44.62, 2.04, 0), V(0, 0, 1), 0.3),
    Part.Circle(V(44.62, -0.14, 0), V(0, 0, 1), 0.3),
    Part.Circle(V(44.62, -2.33, 0), V(0, 0, 1), 0.3),
    Part.Circle(V(44.62, -4.51, 0), V(0, 0, 1), 0.3),
], False)
sketch11.addConstraint([
    Sketcher.Constraint("Equal", 0, 1),
    Sketcher.Constraint("Equal", 1, 2),
    Sketcher.Constraint("Equal", 2, 3),
    Sketcher.Constraint("Equal", 3, 4),
    Sketcher.Constraint("Equal", 4, 5),
    Sketcher.Constraint("Vertical", 0, 3, 1, 3),
    Sketcher.Constraint("Vertical", 1, 3, 2, 3),
    Sketcher.Constraint("Vertical", 2, 3, 3, 3),
    Sketcher.Constraint("Vertical", 3, 3, 4, 3),
    Sketcher.Constraint("Vertical", 4, 3, 5, 3),
    Sketcher.Constraint("Diameter", 0, 0.6),
    Sketcher.Constraint("DistanceY", 1, 3, 0, 3, 2.186),
    Sketcher.Constraint("DistanceY", 2, 3, 1, 3, 2.185),
    Sketcher.Constraint("DistanceY", 3, 3, 2, 3, 2.186),
    Sketcher.Constraint("DistanceY", 4, 3, 3, 3, 2.186),
    Sketcher.Constraint("DistanceY", 5, 3, 4, 3, 2.186),
    Sketcher.Constraint("DistanceX", -1, 1, 0, 3, 44.625),
    Sketcher.Constraint("DistanceY", -1, 1, 0, 3, 6.415),
])
pad8 = doc.addObject("PartDesign::Pad", "Pad007")
body.addObject(pad8)
pad8.Profile = sketch11
pad8.Length = 5.9

sketch12 = doc.addObject("Sketcher::SketchObject", "Sketch011")
body.addObject(sketch12)
sketch12.AttachmentSupport = (doc.XY_Plane, [""])
sketch12.MapMode = "FlatFace"
sketch12.AttachmentOffset = App.Placement(V(0, 0, 1.6), App.Rotation())
add_polygon(sketch12, [(43.1, 23), (39.1, 23), (39.1, 14), (43.1, 14)])
add_polygon(sketch12, [(43.1, -14), (39.1, -14), (39.1, -23), (43.1, -23)])
add_polygon(sketch12, [(33.1, 23), (29.1, 23), (29.1, 18), (33.1, 18)])
add_polygon(sketch12, [(33.1, 15), (29.1, 15), (29.1, 10), (33.1, 10)])
add_polygon(sketch12, [(33.1, -18), (29.1, -18), (29.1, -23), (33.1, -23)])
add_polygon(sketch12, [(33.1, -10), (29.1, -10), (29.1, -15), (33.1, -15)])
sketch12.addConstraint([
    Sketcher.Constraint("Horizontal", 0),
    Sketcher.Constraint("Vertical", 1),
    Sketcher.Constraint("Horizontal", 2),
    Sketcher.Constraint("Vertical", 3),
    Sketcher.Constraint("Horizontal", 4),
    Sketcher.Constraint("Vertical", 5),
    Sketcher.Constraint("Horizontal", 6),
    Sketcher.Constraint("Vertical", 7),
    Sketcher.Constraint("Horizontal", 8),
    Sketcher.Constraint("Vertical", 9),
    Sketcher.Constraint("Horizontal", 10),
    Sketcher.Constraint("Vertical", 11),
    Sketcher.Constraint("Horizontal", 12),
    Sketcher.Constraint("Vertical", 13),
    Sketcher.Constraint("Horizontal", 14),
    Sketcher.Constraint("Vertical", 15),
    Sketcher.Constraint("Horizontal", 16),
    Sketcher.Constraint("Vertical", 17),
    Sketcher.Constraint("Horizontal", 18),
    Sketcher.Constraint("Vertical", 19),
    Sketcher.Constraint("Horizontal", 20),
    Sketcher.Constraint("Vertical", 21),
    Sketcher.Constraint("Horizontal", 22),
    Sketcher.Constraint("Vertical", 23),
    Sketcher.Constraint("Symmetric", 1, 2, 4, 2, -1),
    Sketcher.Constraint("Symmetric", 3, 2, 6, 2, -1),
    Sketcher.Constraint("Symmetric", 9, 2, 16, 2, -1),
    Sketcher.Constraint("Symmetric", 11, 2, 18, 2, -1),
    Sketcher.Constraint("Symmetric", 13, 2, 20, 2, -1),
    Sketcher.Constraint("Symmetric", 15, 2, 22, 2, -1),
    Sketcher.Constraint("Horizontal", 3, 2, 8, 2),
    Sketcher.Constraint("Vertical", 9, 2, 12, 2),
    Sketcher.Constraint("Vertical", 11, 2, 14, 2),
    Sketcher.Constraint("Equal", 6, 8),
    Sketcher.Constraint("Equal", 11, 13),
    Sketcher.Constraint("DistanceX", 0, 2, 0, 1, 4.0),
    Sketcher.Constraint("DistanceY", 1, 2, 1, 1, 9.0),
    Sketcher.Constraint("DistanceY", 9, 2, 9, 1, 5.0),
    Sketcher.Constraint("DistanceY", -1, 1, 12, 2, 15.0),
    Sketcher.Constraint("DistanceY", 5, 2, 0, 2, 46.0),
    Sketcher.Constraint("DistanceX", 8, 2, 0, 2, 10.0),
    Sketcher.Constraint("DistanceX", -1, 1, 0, 2, 39.075),
])
pad9 = doc.addObject("PartDesign::Pad", "Pad008")
body.addObject(pad9)
pad9.Profile = sketch12
pad9.Length = 1.5

sketch13 = doc.addObject("Sketcher::SketchObject", "Sketch012")
body.addObject(sketch13)
sketch13.AttachmentSupport = (doc.XY_Plane, [""])
sketch13.MapMode = "FlatFace"
sketch13.AttachmentOffset = App.Placement(V(0, 0, 1.6), App.Rotation())
sketch13.addGeometry([
    Part.Circle(V(-24, -5, 0), V(0, 0, 1), 5),
    Part.Circle(V(-24, 5, 0), V(0, 0, 1), 5),
], False)
sketch13.addConstraint([
    Sketcher.Constraint("Equal", 0, 1),
    Sketcher.Constraint("Symmetric", 0, 3, 1, 3, -1),
    Sketcher.Constraint("Diameter", 0, 10.3),
    Sketcher.Constraint("DistanceY", 0, 3, 1, 3, 10.45),
    Sketcher.Constraint("DistanceX", 0, 3, -1, 1, 24.275),
])
pad10 = doc.addObject("PartDesign::Pad", "Pad009")
body.addObject(pad10)
pad10.Profile = sketch13
pad10.Length = 20.4

doc.recompute()
